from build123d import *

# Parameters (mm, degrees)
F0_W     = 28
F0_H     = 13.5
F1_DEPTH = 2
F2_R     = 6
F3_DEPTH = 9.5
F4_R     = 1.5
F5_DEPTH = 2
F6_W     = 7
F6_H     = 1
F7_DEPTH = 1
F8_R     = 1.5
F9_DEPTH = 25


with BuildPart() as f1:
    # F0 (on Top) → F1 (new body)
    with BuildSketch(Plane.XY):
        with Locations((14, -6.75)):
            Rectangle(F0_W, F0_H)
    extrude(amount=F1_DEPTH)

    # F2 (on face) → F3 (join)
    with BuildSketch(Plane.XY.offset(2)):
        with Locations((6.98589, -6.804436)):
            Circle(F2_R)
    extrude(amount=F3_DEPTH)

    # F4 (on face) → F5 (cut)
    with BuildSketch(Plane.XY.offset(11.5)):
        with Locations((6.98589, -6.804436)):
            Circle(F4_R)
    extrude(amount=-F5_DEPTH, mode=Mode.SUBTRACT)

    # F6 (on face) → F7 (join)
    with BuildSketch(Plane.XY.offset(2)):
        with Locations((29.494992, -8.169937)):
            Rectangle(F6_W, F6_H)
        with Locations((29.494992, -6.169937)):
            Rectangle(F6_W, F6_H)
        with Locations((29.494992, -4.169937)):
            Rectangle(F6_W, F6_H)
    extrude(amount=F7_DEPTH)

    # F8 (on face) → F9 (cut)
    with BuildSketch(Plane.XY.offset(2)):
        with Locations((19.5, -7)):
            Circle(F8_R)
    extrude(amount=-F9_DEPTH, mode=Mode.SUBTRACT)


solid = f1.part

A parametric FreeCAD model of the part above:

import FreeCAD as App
import Part
import Sketcher

doc = App.newDocument("Part")
body = doc.addObject("PartDesign::Body", "Body")

# Sketch on XY plane
sketch1 = body.newObject("Sketcher::SketchObject", "Sketch")
sketch1.AttachmentSupport = (doc.getObject("XY_Plane"), [""])
sketch1.MapMode = "FlatFace"
sketch1.addGeometry([
    Part.LineSegment(App.Vector(0, 0, 0), App.Vector(0, -14, 0)),
    Part.LineSegment(App.Vector(0, -14, 0), App.Vector(28, -14, 0)),
    Part.LineSegment(App.Vector(28, -14, 0), App.Vector(28, 0, 0)),
    Part.LineSegment(App.Vector(28, 0, 0), App.Vector(0, 0, 0)),
], False)
sketch1.addConstraint([
    Sketcher.Constraint("Coincident", 0, 2, 1, 1),
    Sketcher.Constraint("Coincident", 1, 2, 2, 1),
    Sketcher.Constraint("Coincident", 2, 2, 3, 1),
    Sketcher.Constraint("Coincident", 3, 2, 0, 1),
    Sketcher.Constraint("Vertical", 0),
    Sketcher.Constraint("Horizontal", 1),
    Sketcher.Constraint("Vertical", 2),
    Sketcher.Constraint("Horizontal", 3),
    Sketcher.Constraint("Coincident", 3, 2, -1, 1),
    Sketcher.Constraint("DistanceX", 1, 1, 1, 2, 28.0),
    Sketcher.Constraint("DistanceY", 0, 2, 0, 1, 13.5),
])
pad1 = body.newObject("PartDesign::Pad", "Pad")
pad1.Profile = sketch1
pad1.Length = 2

# Sketch on XY plane
sketch2 = body.newObject("Sketcher::SketchObject", "Sketch001")
sketch2.AttachmentSupport = (doc.getObject("XY_Plane"), [""])
sketch2.MapMode = "FlatFace"
sketch2.AttachmentOffset = App.Placement(App.Vector(0, 0, 2), App.Rotation())
sketch2.addGeometry(Part.Circle(App.Vector(7, -7, 0), App.Vector(0, 0, 1), 6), False)
sketch2.addConstraint([
    Sketcher.Constraint("Diameter", 0, 12.0),
    Sketcher.Constraint("DistanceX", -1, 1, 0, 3, 6.98589),
    Sketcher.Constraint("DistanceY", 0, 3, -1, 1, 6.804436),
])
pad2 = body.newObject("PartDesign::Pad", "Pad001")
pad2.Profile = sketch2
pad2.Length = 9.5

# Sketch on XY plane
sketch3 = body.newObject("Sketcher::SketchObject", "Sketch002")
sketch3.AttachmentSupport = (doc.getObject("XY_Plane"), [""])
sketch3.MapMode = "FlatFace"
sketch3.AttachmentOffset = App.Placement(App.Vector(0, 0, 11.5), App.Rotation())
sketch3.addGeometry(Part.Circle(App.Vector(7, -6.8, 0), App.Vector(0, 0, 1), 1.5), False)
sketch3.addConstraint([
    Sketcher.Constraint("Diameter", 0, 3.0),
    Sketcher.Constraint("DistanceX", -1, 1, 0, 3, 6.98589),
    Sketcher.Constraint("DistanceY", 0, 3, -1, 1, 6.804436),
])
pocket1 = body.newObject("PartDesign::Pocket", "Pocket")
pocket1.Profile = sketch3
pocket1.Length = 2

# Sketch on XY plane
sketch4 = body.newObject("Sketcher::SketchObject", "Sketch003")
sketch4.AttachmentSupport = (doc.getObject("XY_Plane"), [""])
sketch4.MapMode = "FlatFace"
sketch4.AttachmentOffset = App.Placement(App.Vector(0, 0, 2), App.Rotation())
sketch4.addGeometry([
    Part.LineSegment(App.Vector(26, -7.7, 0), App.Vector(26, -8.7, 0)),  # 0
    Part.LineSegment(App.Vector(26, -8.7, 0), App.Vector(33, -8.7, 0)),  # 1
    Part.LineSegment(App.Vector(33, -8.7, 0), App.Vector(33, -7.7, 0)),  # 2
    Part.LineSegment(App.Vector(33, -7.7, 0), App.Vector(26, -7.7, 0)),  # 3
    Part.LineSegment(App.Vector(26, -5.7, 0), App.Vector(26, -6.7, 0)),  # 4
    Part.LineSegment(App.Vector(26, -6.7, 0), App.Vector(33, -6.7, 0)),  # 5
    Part.LineSegment(App.Vector(33, -6.7, 0), App.Vector(33, -5.7, 0)),  # 6
    Part.LineSegment(App.Vector(33, -5.7, 0), App.Vector(26, -5.7, 0)),  # 7
    Part.LineSegment(App.Vector(26, -3.7, 0), App.Vector(26, -4.7, 0)),  # 8
    Part.LineSegment(App.Vector(26, -4.7, 0), App.Vector(33, -4.7, 0)),  # 9
    Part.LineSegment(App.Vector(33, -4.7, 0), App.Vector(33, -3.7, 0)),  # 10
    Part.LineSegment(App.Vector(33, -3.7, 0), App.Vector(26, -3.7, 0)),  # 11
], False)
sketch4.addConstraint([
    Sketcher.Constraint("Coincident", 0, 2, 1, 1),
    Sketcher.Constraint("Coincident", 1, 2, 2, 1),
    Sketcher.Constraint("Coincident", 2, 2, 3, 1),
    Sketcher.Constraint("Coincident", 3, 2, 0, 1),
    Sketcher.Constraint("Coincident", 4, 2, 5, 1),
    Sketcher.Constraint("Coincident", 5, 2, 6, 1),
    Sketcher.Constraint("Coincident", 6, 2, 7, 1),
    Sketcher.Constraint("Coincident", 7, 2, 4, 1),
    Sketcher.Constraint("Coincident", 8, 2, 9, 1),
    Sketcher.Constraint("Coincident", 9, 2, 10, 1),
    Sketcher.Constraint("Coincident", 10, 2, 11, 1),
    Sketcher.Constraint("Coincident", 11, 2, 8, 1),
    Sketcher.Constraint("Vertical", 0),
    Sketcher.Constraint("Horizontal", 1),
    Sketcher.Constraint("Vertical", 2),
    Sketcher.Constraint("Horizontal", 3),
    Sketcher.Constraint("Vertical", 4),
    Sketcher.Constraint("Horizontal", 5),
    Sketcher.Constraint("Vertical", 6),
    Sketcher.Constraint("Horizontal", 7),
    Sketcher.Constraint("Vertical", 8),
    Sketcher.Constraint("Horizontal", 9),
    Sketcher.Constraint("Vertical", 10),
    Sketcher.Constraint("Horizontal", 11),
    Sketcher.Constraint("Vertical", 3, 2, 4, 2),
    Sketcher.Constraint("Vertical", 2, 2, 5, 2),
    Sketcher.Constraint("Vertical", 7, 2, 8, 2),
    Sketcher.Constraint("Vertical", 6, 2, 9, 2),
    Sketcher.Constraint("Equal", 2, 4),
    Sketcher.Constraint("Equal", 6, 8),
    Sketcher.Constraint("DistanceX", 1, 1, 1, 2, 7.0),
    Sketcher.Constraint("DistanceY", 0, 2, 0, 1, 1.0),
    Sketcher.Constraint("DistanceY", 3, 2, 4, 2, 1.0),
    Sketcher.Constraint("DistanceY", 7, 2, 8, 2, 1.0),
    Sketcher.Constraint("DistanceX", -1, 1, 0, 2, 25.994992),
    Sketcher.Constraint("DistanceY", 0, 2, -1, 1, 8.669937),
])
pad3 = body.newObject("PartDesign::Pad", "Pad002")
pad3.Profile = sketch4
pad3.Length = 1

# Sketch on XY plane
sketch5 = body.newObject("Sketcher::SketchObject", "Sketch004")
sketch5.AttachmentSupport = (doc.getObject("XY_Plane"), [""])
sketch5.MapMode = "FlatFace"
sketch5.AttachmentOffset = App.Placement(App.Vector(0, 0, 2), App.Rotation())
sketch5.addGeometry(Part.Circle(App.Vector(19.5, -7, 0), App.Vector(0, 0, 1), 1.5), False)
sketch5.addConstraint([
    Sketcher.Constraint("Diameter", 0, 3.0),
    Sketcher.Constraint("DistanceY", 0, 3, -1, 1, 7.0),
    Sketcher.Constraint("DistanceX", -1, 1, 0, 3, 19.5),
])
pocket2 = body.newObject("PartDesign::Pocket", "Pocket001")
pocket2.Profile = sketch5
pocket2.Length = 25

doc.recompute()
